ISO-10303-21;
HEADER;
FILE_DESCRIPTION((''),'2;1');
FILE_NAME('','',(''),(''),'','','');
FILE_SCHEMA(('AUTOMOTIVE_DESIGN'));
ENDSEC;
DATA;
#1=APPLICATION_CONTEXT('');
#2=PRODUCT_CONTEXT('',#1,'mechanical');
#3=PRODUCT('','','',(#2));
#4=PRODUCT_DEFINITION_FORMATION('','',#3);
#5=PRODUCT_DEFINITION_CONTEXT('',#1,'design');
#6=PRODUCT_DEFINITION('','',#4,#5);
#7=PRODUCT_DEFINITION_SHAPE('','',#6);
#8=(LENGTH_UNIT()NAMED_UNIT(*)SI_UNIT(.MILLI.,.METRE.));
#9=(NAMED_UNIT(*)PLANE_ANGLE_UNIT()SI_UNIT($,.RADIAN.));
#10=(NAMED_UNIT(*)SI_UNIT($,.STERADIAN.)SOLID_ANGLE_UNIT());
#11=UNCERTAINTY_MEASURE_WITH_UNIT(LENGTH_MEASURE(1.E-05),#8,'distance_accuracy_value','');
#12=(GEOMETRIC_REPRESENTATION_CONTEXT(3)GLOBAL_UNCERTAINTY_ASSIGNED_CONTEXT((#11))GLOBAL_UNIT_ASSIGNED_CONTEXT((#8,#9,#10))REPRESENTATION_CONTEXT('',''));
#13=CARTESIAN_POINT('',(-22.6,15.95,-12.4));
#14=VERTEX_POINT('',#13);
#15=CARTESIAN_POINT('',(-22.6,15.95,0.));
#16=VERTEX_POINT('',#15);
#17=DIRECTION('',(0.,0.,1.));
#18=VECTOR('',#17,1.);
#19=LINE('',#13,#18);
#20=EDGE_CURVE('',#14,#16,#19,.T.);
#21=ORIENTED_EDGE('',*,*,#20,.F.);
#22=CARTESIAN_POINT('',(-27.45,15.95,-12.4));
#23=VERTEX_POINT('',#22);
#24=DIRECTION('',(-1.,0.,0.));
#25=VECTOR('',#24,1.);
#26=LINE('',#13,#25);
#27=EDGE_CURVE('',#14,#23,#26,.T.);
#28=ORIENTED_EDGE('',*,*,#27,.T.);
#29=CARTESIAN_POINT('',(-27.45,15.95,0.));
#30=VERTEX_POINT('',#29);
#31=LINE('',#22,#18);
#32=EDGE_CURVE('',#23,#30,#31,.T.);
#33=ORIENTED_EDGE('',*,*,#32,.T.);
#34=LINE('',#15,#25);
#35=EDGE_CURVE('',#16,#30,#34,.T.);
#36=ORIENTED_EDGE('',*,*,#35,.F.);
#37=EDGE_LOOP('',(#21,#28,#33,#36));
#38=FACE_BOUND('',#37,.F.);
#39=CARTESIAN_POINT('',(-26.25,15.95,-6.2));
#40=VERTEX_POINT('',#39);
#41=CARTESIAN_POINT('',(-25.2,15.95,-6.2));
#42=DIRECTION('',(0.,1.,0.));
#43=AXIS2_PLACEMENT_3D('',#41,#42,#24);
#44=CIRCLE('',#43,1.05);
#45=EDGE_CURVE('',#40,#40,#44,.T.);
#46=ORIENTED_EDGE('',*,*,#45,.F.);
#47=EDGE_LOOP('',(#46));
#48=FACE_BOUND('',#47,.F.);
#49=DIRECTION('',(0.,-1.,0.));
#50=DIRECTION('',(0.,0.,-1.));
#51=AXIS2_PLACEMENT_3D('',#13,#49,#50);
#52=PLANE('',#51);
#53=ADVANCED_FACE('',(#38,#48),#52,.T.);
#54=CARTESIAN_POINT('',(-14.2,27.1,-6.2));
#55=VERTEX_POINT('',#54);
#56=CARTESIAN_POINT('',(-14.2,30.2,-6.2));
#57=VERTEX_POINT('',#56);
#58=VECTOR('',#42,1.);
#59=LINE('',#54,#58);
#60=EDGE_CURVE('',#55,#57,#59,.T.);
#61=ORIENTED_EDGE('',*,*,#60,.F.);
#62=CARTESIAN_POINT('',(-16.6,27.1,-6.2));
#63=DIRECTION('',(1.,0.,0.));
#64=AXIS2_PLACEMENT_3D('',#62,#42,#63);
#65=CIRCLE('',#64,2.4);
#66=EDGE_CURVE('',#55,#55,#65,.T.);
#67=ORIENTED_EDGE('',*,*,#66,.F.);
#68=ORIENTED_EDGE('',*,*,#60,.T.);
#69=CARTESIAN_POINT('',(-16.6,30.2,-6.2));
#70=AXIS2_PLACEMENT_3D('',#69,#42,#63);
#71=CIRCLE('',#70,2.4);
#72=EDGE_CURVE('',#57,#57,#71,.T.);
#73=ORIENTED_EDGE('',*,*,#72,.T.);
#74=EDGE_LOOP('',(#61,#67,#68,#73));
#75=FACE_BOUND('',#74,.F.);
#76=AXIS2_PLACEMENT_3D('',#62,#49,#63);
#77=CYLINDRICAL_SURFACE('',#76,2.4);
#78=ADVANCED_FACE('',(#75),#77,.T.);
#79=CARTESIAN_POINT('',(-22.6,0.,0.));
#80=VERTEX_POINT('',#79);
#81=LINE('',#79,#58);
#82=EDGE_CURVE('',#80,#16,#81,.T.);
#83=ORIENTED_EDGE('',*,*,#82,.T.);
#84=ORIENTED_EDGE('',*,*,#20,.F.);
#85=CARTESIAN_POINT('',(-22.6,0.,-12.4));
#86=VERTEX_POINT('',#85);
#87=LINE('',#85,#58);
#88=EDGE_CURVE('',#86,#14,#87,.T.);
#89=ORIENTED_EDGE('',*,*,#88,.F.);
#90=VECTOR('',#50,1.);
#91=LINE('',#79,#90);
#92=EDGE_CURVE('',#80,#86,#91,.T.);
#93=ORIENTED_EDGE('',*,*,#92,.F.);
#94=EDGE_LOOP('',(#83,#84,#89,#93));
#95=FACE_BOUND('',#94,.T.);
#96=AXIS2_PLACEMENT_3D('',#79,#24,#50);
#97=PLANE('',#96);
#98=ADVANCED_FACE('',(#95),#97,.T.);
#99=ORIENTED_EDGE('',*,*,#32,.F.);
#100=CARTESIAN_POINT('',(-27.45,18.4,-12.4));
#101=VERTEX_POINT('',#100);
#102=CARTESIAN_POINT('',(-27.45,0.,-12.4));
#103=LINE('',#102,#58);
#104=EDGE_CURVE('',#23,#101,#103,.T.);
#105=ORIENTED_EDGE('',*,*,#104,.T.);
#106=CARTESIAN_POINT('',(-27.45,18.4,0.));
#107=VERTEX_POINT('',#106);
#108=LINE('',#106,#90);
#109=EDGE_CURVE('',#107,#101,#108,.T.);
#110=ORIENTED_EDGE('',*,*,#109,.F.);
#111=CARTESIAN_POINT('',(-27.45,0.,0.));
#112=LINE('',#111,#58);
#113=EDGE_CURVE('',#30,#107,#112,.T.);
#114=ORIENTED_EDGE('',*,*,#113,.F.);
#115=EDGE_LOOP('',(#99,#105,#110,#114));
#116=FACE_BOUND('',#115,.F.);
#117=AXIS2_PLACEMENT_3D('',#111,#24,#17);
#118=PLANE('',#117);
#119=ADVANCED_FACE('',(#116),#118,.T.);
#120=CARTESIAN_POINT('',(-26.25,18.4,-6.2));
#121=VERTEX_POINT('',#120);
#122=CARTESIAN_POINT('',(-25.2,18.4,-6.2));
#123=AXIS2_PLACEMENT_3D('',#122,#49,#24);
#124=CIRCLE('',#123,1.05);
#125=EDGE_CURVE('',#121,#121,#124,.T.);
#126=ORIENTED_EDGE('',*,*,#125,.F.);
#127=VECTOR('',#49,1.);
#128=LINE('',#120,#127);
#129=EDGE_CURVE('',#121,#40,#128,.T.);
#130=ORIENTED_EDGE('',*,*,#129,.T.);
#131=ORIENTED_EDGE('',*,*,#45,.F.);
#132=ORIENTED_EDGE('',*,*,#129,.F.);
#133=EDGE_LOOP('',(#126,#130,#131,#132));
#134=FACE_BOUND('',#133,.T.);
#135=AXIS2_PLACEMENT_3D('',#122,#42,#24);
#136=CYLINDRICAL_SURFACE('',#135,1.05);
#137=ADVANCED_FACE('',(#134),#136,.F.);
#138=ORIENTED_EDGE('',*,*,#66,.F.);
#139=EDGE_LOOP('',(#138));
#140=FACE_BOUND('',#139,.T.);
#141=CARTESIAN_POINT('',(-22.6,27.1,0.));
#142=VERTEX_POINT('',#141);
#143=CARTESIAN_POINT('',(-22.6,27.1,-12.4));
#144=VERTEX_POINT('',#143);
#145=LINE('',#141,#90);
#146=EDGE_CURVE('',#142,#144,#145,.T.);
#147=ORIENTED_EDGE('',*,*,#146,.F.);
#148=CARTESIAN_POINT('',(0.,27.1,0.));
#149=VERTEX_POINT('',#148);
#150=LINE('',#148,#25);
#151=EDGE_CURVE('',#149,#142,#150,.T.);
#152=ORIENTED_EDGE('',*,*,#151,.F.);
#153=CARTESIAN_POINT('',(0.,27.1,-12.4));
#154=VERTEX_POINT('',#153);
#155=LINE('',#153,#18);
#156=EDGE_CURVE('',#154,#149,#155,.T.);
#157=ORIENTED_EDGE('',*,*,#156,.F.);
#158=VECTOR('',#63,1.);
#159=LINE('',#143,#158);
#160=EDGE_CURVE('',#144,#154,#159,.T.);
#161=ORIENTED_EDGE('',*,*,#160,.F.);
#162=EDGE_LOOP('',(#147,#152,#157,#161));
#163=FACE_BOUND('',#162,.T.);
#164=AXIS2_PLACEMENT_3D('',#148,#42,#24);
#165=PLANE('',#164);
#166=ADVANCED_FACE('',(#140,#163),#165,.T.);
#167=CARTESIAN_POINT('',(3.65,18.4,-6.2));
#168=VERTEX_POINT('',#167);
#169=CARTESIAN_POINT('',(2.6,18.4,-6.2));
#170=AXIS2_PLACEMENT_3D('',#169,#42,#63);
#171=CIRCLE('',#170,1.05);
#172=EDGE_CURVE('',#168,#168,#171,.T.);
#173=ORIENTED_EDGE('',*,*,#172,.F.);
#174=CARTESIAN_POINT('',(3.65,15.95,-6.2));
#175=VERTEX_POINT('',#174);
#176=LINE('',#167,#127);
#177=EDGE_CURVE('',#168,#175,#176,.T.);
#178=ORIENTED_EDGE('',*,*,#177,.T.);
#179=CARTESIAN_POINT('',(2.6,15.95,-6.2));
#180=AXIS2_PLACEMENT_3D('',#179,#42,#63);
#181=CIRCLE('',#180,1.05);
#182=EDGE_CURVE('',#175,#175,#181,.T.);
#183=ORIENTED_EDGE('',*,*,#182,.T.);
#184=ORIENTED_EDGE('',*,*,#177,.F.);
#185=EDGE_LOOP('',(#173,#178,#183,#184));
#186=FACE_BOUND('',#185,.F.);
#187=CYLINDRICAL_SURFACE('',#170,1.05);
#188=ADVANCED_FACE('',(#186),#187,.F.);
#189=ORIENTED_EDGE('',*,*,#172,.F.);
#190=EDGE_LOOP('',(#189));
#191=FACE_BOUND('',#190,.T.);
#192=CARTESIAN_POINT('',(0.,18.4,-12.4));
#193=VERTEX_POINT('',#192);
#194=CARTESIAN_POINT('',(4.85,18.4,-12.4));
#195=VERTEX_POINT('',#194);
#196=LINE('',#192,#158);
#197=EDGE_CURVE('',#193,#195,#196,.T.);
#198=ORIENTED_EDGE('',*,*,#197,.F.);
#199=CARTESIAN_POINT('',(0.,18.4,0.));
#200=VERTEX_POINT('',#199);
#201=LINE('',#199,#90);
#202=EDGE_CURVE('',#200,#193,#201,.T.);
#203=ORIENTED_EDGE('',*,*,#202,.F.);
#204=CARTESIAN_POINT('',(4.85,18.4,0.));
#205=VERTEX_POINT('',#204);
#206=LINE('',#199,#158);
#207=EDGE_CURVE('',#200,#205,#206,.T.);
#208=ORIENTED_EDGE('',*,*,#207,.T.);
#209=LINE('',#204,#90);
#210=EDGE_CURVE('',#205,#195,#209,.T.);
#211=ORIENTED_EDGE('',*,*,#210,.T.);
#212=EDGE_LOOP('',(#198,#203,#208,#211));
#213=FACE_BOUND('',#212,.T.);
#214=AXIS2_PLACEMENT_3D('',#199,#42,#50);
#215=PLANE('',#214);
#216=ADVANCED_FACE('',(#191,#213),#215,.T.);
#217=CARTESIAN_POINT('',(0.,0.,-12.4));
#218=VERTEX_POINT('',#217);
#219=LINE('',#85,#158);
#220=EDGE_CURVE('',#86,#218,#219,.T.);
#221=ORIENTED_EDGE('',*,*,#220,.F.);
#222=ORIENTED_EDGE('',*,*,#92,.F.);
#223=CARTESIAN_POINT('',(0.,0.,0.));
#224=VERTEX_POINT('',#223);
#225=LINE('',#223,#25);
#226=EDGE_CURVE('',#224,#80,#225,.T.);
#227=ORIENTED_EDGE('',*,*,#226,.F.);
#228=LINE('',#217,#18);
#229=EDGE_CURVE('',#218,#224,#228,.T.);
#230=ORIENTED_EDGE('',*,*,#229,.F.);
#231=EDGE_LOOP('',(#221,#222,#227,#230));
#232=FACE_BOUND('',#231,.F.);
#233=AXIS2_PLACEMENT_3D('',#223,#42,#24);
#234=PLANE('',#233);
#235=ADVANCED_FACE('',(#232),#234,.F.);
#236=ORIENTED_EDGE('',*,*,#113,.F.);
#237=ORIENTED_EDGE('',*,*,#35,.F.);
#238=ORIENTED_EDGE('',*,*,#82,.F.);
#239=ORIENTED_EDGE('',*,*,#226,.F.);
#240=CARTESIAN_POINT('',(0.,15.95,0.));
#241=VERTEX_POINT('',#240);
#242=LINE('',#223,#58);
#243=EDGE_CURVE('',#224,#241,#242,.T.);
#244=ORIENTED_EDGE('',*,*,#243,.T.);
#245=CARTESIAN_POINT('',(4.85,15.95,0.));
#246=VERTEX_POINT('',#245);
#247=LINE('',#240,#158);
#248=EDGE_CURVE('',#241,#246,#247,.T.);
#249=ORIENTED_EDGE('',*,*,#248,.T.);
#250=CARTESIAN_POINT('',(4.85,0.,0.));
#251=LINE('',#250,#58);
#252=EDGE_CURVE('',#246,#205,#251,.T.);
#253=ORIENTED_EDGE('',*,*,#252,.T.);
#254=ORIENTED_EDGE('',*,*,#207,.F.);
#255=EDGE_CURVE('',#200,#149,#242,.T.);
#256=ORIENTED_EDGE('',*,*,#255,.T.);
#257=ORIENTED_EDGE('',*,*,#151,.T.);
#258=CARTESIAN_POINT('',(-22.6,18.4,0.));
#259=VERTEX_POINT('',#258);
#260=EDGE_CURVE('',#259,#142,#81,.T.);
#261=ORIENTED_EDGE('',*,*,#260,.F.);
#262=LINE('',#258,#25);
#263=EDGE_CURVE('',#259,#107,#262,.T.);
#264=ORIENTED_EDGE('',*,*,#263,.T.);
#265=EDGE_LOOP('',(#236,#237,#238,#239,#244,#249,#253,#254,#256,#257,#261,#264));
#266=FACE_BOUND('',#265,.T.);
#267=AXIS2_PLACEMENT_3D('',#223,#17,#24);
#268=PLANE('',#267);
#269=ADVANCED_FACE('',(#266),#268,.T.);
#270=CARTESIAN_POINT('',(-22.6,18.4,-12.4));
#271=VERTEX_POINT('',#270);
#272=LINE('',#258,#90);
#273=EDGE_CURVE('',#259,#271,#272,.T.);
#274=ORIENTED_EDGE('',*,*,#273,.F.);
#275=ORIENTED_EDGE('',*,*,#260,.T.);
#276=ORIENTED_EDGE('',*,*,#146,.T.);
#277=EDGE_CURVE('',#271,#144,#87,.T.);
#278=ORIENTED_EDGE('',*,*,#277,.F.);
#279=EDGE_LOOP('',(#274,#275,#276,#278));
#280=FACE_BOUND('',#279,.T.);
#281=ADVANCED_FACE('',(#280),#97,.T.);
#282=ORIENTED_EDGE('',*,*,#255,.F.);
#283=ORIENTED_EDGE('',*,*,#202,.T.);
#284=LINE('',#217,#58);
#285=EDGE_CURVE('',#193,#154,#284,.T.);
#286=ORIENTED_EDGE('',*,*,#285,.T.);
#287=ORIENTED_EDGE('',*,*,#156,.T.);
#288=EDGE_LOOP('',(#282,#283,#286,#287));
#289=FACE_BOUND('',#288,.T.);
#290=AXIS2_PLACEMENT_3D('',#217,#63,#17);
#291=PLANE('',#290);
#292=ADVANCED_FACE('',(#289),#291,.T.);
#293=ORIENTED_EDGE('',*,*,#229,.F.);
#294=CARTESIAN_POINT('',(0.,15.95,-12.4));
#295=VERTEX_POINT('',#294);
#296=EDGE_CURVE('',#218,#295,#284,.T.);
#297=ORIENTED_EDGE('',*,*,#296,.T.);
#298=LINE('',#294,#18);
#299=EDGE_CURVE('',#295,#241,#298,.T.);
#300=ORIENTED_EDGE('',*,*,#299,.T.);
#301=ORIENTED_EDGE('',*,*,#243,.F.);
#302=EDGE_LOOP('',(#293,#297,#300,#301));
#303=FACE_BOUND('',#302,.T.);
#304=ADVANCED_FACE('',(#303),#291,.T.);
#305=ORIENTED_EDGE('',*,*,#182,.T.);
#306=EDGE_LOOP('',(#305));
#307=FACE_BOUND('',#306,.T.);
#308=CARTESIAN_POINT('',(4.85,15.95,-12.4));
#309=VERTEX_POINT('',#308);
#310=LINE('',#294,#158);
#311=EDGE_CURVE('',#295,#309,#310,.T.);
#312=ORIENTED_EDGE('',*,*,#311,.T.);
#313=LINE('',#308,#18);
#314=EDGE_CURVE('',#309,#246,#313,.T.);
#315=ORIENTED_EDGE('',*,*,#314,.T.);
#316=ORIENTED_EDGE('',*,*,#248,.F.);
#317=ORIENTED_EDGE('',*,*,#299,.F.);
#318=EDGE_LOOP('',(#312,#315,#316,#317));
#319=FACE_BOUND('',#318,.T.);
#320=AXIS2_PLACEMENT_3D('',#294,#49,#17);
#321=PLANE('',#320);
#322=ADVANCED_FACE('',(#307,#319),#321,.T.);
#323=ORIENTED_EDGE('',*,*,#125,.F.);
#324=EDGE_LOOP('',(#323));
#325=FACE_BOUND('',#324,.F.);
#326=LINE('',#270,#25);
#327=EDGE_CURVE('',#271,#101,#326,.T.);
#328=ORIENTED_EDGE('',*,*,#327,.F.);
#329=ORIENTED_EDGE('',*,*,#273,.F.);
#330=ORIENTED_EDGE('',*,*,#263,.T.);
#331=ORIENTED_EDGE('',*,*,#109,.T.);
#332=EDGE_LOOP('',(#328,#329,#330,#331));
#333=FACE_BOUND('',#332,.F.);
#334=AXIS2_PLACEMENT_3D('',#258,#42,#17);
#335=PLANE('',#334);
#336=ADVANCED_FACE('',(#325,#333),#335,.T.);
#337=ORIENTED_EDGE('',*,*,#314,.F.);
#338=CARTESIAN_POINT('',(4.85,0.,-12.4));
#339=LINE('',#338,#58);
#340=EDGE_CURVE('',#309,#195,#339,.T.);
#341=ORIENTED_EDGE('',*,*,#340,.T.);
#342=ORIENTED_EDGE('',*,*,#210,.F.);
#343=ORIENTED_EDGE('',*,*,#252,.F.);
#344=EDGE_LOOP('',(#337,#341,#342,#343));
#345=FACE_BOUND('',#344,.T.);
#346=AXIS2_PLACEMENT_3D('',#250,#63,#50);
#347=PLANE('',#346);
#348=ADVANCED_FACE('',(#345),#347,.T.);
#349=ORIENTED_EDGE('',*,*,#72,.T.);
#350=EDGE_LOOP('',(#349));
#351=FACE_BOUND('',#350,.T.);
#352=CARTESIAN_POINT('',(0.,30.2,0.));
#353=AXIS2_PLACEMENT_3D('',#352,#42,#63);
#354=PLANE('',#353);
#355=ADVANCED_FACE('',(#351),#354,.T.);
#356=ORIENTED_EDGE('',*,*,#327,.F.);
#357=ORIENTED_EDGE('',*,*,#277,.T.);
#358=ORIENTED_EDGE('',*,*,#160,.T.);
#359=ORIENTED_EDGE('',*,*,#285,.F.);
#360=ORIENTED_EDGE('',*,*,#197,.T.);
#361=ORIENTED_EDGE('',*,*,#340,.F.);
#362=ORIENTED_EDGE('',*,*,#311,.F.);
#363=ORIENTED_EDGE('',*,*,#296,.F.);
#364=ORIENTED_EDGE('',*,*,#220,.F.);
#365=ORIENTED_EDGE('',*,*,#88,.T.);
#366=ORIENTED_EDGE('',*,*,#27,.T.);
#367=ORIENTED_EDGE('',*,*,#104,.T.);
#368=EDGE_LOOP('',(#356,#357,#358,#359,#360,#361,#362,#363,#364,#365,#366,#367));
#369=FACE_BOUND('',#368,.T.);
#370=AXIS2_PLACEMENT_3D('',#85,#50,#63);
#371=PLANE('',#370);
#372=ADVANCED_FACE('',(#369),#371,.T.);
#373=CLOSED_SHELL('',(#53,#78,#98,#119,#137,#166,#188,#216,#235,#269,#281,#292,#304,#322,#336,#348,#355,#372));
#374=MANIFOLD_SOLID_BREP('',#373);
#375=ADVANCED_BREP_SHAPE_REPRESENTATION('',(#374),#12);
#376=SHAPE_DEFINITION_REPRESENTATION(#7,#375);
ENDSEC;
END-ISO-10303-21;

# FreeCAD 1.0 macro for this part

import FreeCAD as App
import Part
import Sketcher


def add_polygon(sketch, points):
    """Adds a closed chain of lines whose ends are joined by coincident constraints."""
    first, n = sketch.GeometryCount, len(points)
    for a, b in zip(points, points[1:] + points[:1]):
        sketch.addGeometry(Part.LineSegment(App.Vector(*a, 0), App.Vector(*b, 0)), False)
    for i in range(n):
        sketch.addConstraint(Sketcher.Constraint("Coincident", first + i, 2, first + (i + 1) % n, 1))

doc = App.newDocument("Part")
params = doc.addObject("Spreadsheet::Sheet", "Params")
for row, (alias, value) in enumerate([
    ("sketch1_width", "22.6 mm"),
    ("sketch1_height", "12.4 mm"),
    ("pad1_length", "27.1 mm"),
    ("sketch2_diameter", "4.8 mm"),
    ("pad2_length", "3.1 mm"),
    ("sketch3_width", "2.45 mm"),
    ("sketch3_height", "12.4 mm"),
    ("pad3_length", "4.85 mm"),
    ("sketch4_diameter", "2.1 mm"),
], start=1):
    params.set(f"A{row}", alias)
    params.set(f"B{row}", "=" + value)
    params.setAlias(f"B{row}", alias)

body = doc.addObject("PartDesign::Body", "Body")

# Sketch on XZ plane
sketch1 = body.newObject("Sketcher::SketchObject", "Sketch")
sketch1.AttachmentSupport = (doc.getObject("XZ_Plane"), [""])
sketch1.MapMode = "FlatFace"
add_polygon(sketch1, [(-22.6, 0), (0, 0), (0, -12.4), (-22.6, -12.4)])  # lines 0-3
sketch1.addConstraint(Sketcher.Constraint("Horizontal", 0))
sketch1.addConstraint(Sketcher.Constraint("Vertical", 1))
sketch1.addConstraint(Sketcher.Constraint("Horizontal", 2))
sketch1.addConstraint(Sketcher.Constraint("Vertical", 3))
sketch1.addConstraint(Sketcher.Constraint("Coincident", 0, 2, -1, 1))
sketch1.addConstraint(Sketcher.Constraint("DistanceX", 0, 1, 0, 2, 22.6))
sketch1.addConstraint(Sketcher.Constraint("DistanceY", 1, 2, 1, 1, 12.4))
sketch1.setExpression("Constraints[9]", "Params.sketch1_width")
sketch1.setExpression("Constraints[10]", "Params.sketch1_height")
pad1 = body.newObject("PartDesign::Pad", "Pad")
pad1.Profile = sketch1
pad1.setExpression("Length", "Params.pad1_length")
pad1.Reversed = True

# Sketch on XZ plane
sketch2 = body.newObject("Sketcher::SketchObject", "Sketch001")
sketch2.AttachmentSupport = (doc.getObject("XZ_Plane"), [""])
sketch2.MapMode = "FlatFace"
sketch2.AttachmentOffset = App.Placement(App.Vector(0, 0, -27.1), App.Rotation())
sketch2.addGeometry(Part.Circle(App.Vector(-16.6, -6.2, 0), App.Vector(0, 0, 1), 2.4), False)
sketch2.addConstraint(Sketcher.Constraint("Diameter", 0, 4.8))
sketch2.addConstraint(Sketcher.Constraint("DistanceY", 0, 3, -1, 1, 6.2))
sketch2.addConstraint(Sketcher.Constraint("DistanceX", 0, 3, -1, 1, 16.6))
sketch2.setExpression("Constraints[0]", "Params.sketch2_diameter")
pad2 = body.newObject("PartDesign::Pad", "Pad001")
pad2.Profile = sketch2
pad2.setExpression("Length", "Params.pad2_length")
pad2.Reversed = True

# Sketch on YZ plane
sketch3 = body.newObject("Sketcher::SketchObject", "Sketch002")
sketch3.AttachmentSupport = (doc.getObject("YZ_Plane"), [""])
sketch3.MapMode = "FlatFace"
add_polygon(sketch3, [(18.4, 0), (15.95, 0), (15.95, -12.4), (18.4, -12.4)])  # lines 0-3
sketch3.addConstraint(Sketcher.Constraint("Horizontal", 0))
sketch3.addConstraint(Sketcher.Constraint("Vertical", 1))
sketch3.addConstraint(Sketcher.Constraint("Horizontal", 2))
sketch3.addConstraint(Sketcher.Constraint("Vertical", 3))
sketch3.addConstraint(Sketcher.Constraint("PointOnObject", 0, 2, -1))
sketch3.addConstraint(Sketcher.Constraint("DistanceX", 0, 2, 0, 1, 2.45))
sketch3.addConstraint(Sketcher.Constraint("DistanceY", 1, 2, 1, 1, 12.4))
sketch3.addConstraint(Sketcher.Constraint("DistanceX", -1, 1, 2, 2, 18.4))
sketch3.setExpression("Constraints[9]", "Params.sketch3_width")
sketch3.setExpression("Constraints[10]", "Params.sketch3_height")
pad3 = body.newObject("PartDesign::Pad", "Pad002")
pad3.Profile = sketch3
pad3.setExpression("Length", "Params.pad3_length")
doc.recompute()

datumplane = body.newObject("PartDesign::Plane", "DatumPlane")
datumplane.AttachmentSupport = (doc.getObject("YZ_Plane"), [""])
datumplane.MapMode = "FlatFace"
datumplane.AttachmentOffset = App.Placement(App.Vector(0, 0, -11.3), App.Rotation())
mirrored = body.newObject("PartDesign::Mirrored", "Mirrored")
mirrored.Originals = [pad3]
mirrored.MirrorPlane = (datumplane, [""])
body.Tip = mirrored

# Sketch on XZ plane
sketch4 = body.newObject("Sketcher::SketchObject", "Sketch003")
sketch4.AttachmentSupport = (doc.getObject("XZ_Plane"), [""])
sketch4.MapMode = "FlatFace"
sketch4.AttachmentOffset = App.Placement(App.Vector(0, 0, -18.4), App.Rotation())
sketch4.addGeometry(Part.Circle(App.Vector(2.6, -6.2, 0), App.Vector(0, 0, 1), 1.05), False)
sketch4.addConstraint(Sketcher.Constraint("Diameter", 0, 2.1))
sketch4.addConstraint(Sketcher.Constraint("DistanceY", 0, 3, -1, 1, 6.2))
sketch4.addConstraint(Sketcher.Constraint("DistanceX", -1, 1, 0, 3, 2.6))
sketch4.setExpression("Constraints[0]", "Params.sketch4_diameter")
pocket1 = body.newObject("PartDesign::Pocket", "Pocket")
pocket1.Profile = sketch4
pocket1.Type = "ThroughAll"
pocket1.Reversed = True
doc.recompute()

datumplane2 = body.newObject("PartDesign::Plane", "DatumPlane001")
datumplane2.AttachmentSupport = (doc.getObject("YZ_Plane"), [""])
datumplane2.MapMode = "FlatFace"
datumplane2.AttachmentOffset = App.Placement(App.Vector(0, 0, -11.3), App.Rotation())
mirrored2 = body.newObject("PartDesign::Mirrored", "Mirrored001")
mirrored2.Originals = [pocket1]
mirrored2.MirrorPlane = (datumplane2, [""])
body.Tip = mirrored2

doc.recompute()
